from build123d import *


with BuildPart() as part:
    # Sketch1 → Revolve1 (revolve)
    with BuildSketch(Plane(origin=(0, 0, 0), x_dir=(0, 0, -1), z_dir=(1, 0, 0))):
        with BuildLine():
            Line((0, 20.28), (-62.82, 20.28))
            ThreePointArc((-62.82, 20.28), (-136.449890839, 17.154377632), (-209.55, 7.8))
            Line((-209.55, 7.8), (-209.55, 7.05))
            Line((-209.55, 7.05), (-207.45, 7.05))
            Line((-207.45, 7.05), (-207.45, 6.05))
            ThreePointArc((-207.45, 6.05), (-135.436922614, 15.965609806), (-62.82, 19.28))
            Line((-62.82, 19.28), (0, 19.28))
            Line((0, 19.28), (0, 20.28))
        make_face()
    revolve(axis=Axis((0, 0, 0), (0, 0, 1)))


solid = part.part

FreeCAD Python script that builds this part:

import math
import FreeCAD as App
import Part
import Sketcher
from FreeCAD import Vector

doc = App.newDocument("Part")
params = doc.addObject("Spreadsheet::Sheet", "Params")
for row, (alias, value) in enumerate([
    ("sketch1_width", "1 mm"),
    ("sketch1_height", "2.1 mm"),
    ("sketch1_width2", "0.75 mm"),
    ("sketch1_height2", "62.82 mm"),
    ("revolution_angle", "360 deg"),
], start=1):
    params.set(f"A{row}", alias)
    params.set(f"B{row}", "=" + value)
    params.setAlias(f"B{row}", alias)

body = doc.addObject("PartDesign::Body", "Body")

# Sketch on YZ plane
sketch1 = body.newObject("Sketcher::SketchObject", "Sketch")
sketch1.AttachmentSupport = (doc.getObject("YZ_Plane"), [""])
sketch1.MapMode = "FlatFace"
sketch1.addGeometry(Part.LineSegment(Vector(20.28, 0, 0), Vector(20.28, 62.82, 0)), False)
sketch1.addGeometry(Part.ArcOfCircle(Part.Circle(Vector(-848.527824, 62.82, 0), Vector(0, 0, 1), 868.807824), math.radians(0), math.radians(9.72309)), False)
sketch1.addGeometry(Part.LineSegment(Vector(7.8, 209.55, 0), Vector(7.05, 209.55, 0)), False)
sketch1.addGeometry(Part.LineSegment(Vector(7.05, 209.55, 0), Vector(7.05, 207.45, 0)), False)
sketch1.addGeometry(Part.LineSegment(Vector(7.05, 207.45, 0), Vector(6.05, 207.45, 0)), False)
sketch1.addGeometry(Part.ArcOfCircle(Part.Circle(Vector(-777.880612, 62.82, 0), Vector(0, 0, 1), 797.160612), math.radians(0), math.radians(10.453148)), False)
sketch1.addGeometry(Part.LineSegment(Vector(19.28, 62.82, 0), Vector(19.28, 0, 0)), False)
sketch1.addGeometry(Part.LineSegment(Vector(19.28, 0, 0), Vector(20.28, 0, 0)), False)
sketch1.addConstraint(Sketcher.Constraint("Tangent", 0, 2, 1, 1))
sketch1.addConstraint(Sketcher.Constraint("Coincident", 1, 2, 2, 1))
sketch1.addConstraint(Sketcher.Constraint("Coincident", 2, 2, 3, 1))
sketch1.addConstraint(Sketcher.Constraint("Coincident", 3, 2, 4, 1))
sketch1.addConstraint(Sketcher.Constraint("Coincident", 4, 2, 5, 2))
sketch1.addConstraint(Sketcher.Constraint("Tangent", 5, 1, 6, 1))
sketch1.addConstraint(Sketcher.Constraint("Coincident", 6, 2, 7, 1))
sketch1.addConstraint(Sketcher.Constraint("Coincident", 7, 2, 0, 1))
sketch1.addConstraint(Sketcher.Constraint("Vertical", 0))
sketch1.addConstraint(Sketcher.Constraint("Horizontal", 2))
sketch1.addConstraint(Sketcher.Constraint("Vertical", 3))
sketch1.addConstraint(Sketcher.Constraint("Horizontal", 4))
sketch1.addConstraint(Sketcher.Constraint("Vertical", 6))
sketch1.addConstraint(Sketcher.Constraint("Horizontal", 7))
sketch1.addConstraint(Sketcher.Constraint("PointOnObject", 6, 2, -1))
sketch1.addConstraint(Sketcher.Constraint("Horizontal", 1, 3, 5, 3))
sketch1.addConstraint(Sketcher.Constraint("Equal", 4, 7))
sketch1.addConstraint(Sketcher.Constraint("DistanceX", 4, 2, 4, 1, 1.0))
sketch1.addConstraint(Sketcher.Constraint("DistanceY", 3, 2, 3, 1, 2.1))
sketch1.addConstraint(Sketcher.Constraint("DistanceX", 2, 2, 2, 1, 0.75))
sketch1.addConstraint(Sketcher.Constraint("DistanceY", 0, 1, 0, 2, 62.82))
sketch1.addConstraint(Sketcher.Constraint("DistanceX", -1, 1, 0, 2, 20.28))
sketch1.addConstraint(Sketcher.Constraint("DistanceX", -1, 1, 2, 2, 7.05))
sketch1.addConstraint(Sketcher.Constraint("DistanceY", -1, 1, 2, 2, 209.55))
sketch1.setExpression("Constraints[17]", "Params.sketch1_width")
sketch1.setExpression("Constraints[18]", "Params.sketch1_height")
sketch1.setExpression("Constraints[19]", "Params.sketch1_width2")
sketch1.setExpression("Constraints[20]", "Params.sketch1_height2")
revolution = body.newObject("PartDesign::Revolution", "Revolution")
revolution.Profile = sketch1
revolution.ReferenceAxis = (sketch1, ["V_Axis"])
revolution.setExpression("Angle", "Params.revolution_angle")

doc.recompute()
